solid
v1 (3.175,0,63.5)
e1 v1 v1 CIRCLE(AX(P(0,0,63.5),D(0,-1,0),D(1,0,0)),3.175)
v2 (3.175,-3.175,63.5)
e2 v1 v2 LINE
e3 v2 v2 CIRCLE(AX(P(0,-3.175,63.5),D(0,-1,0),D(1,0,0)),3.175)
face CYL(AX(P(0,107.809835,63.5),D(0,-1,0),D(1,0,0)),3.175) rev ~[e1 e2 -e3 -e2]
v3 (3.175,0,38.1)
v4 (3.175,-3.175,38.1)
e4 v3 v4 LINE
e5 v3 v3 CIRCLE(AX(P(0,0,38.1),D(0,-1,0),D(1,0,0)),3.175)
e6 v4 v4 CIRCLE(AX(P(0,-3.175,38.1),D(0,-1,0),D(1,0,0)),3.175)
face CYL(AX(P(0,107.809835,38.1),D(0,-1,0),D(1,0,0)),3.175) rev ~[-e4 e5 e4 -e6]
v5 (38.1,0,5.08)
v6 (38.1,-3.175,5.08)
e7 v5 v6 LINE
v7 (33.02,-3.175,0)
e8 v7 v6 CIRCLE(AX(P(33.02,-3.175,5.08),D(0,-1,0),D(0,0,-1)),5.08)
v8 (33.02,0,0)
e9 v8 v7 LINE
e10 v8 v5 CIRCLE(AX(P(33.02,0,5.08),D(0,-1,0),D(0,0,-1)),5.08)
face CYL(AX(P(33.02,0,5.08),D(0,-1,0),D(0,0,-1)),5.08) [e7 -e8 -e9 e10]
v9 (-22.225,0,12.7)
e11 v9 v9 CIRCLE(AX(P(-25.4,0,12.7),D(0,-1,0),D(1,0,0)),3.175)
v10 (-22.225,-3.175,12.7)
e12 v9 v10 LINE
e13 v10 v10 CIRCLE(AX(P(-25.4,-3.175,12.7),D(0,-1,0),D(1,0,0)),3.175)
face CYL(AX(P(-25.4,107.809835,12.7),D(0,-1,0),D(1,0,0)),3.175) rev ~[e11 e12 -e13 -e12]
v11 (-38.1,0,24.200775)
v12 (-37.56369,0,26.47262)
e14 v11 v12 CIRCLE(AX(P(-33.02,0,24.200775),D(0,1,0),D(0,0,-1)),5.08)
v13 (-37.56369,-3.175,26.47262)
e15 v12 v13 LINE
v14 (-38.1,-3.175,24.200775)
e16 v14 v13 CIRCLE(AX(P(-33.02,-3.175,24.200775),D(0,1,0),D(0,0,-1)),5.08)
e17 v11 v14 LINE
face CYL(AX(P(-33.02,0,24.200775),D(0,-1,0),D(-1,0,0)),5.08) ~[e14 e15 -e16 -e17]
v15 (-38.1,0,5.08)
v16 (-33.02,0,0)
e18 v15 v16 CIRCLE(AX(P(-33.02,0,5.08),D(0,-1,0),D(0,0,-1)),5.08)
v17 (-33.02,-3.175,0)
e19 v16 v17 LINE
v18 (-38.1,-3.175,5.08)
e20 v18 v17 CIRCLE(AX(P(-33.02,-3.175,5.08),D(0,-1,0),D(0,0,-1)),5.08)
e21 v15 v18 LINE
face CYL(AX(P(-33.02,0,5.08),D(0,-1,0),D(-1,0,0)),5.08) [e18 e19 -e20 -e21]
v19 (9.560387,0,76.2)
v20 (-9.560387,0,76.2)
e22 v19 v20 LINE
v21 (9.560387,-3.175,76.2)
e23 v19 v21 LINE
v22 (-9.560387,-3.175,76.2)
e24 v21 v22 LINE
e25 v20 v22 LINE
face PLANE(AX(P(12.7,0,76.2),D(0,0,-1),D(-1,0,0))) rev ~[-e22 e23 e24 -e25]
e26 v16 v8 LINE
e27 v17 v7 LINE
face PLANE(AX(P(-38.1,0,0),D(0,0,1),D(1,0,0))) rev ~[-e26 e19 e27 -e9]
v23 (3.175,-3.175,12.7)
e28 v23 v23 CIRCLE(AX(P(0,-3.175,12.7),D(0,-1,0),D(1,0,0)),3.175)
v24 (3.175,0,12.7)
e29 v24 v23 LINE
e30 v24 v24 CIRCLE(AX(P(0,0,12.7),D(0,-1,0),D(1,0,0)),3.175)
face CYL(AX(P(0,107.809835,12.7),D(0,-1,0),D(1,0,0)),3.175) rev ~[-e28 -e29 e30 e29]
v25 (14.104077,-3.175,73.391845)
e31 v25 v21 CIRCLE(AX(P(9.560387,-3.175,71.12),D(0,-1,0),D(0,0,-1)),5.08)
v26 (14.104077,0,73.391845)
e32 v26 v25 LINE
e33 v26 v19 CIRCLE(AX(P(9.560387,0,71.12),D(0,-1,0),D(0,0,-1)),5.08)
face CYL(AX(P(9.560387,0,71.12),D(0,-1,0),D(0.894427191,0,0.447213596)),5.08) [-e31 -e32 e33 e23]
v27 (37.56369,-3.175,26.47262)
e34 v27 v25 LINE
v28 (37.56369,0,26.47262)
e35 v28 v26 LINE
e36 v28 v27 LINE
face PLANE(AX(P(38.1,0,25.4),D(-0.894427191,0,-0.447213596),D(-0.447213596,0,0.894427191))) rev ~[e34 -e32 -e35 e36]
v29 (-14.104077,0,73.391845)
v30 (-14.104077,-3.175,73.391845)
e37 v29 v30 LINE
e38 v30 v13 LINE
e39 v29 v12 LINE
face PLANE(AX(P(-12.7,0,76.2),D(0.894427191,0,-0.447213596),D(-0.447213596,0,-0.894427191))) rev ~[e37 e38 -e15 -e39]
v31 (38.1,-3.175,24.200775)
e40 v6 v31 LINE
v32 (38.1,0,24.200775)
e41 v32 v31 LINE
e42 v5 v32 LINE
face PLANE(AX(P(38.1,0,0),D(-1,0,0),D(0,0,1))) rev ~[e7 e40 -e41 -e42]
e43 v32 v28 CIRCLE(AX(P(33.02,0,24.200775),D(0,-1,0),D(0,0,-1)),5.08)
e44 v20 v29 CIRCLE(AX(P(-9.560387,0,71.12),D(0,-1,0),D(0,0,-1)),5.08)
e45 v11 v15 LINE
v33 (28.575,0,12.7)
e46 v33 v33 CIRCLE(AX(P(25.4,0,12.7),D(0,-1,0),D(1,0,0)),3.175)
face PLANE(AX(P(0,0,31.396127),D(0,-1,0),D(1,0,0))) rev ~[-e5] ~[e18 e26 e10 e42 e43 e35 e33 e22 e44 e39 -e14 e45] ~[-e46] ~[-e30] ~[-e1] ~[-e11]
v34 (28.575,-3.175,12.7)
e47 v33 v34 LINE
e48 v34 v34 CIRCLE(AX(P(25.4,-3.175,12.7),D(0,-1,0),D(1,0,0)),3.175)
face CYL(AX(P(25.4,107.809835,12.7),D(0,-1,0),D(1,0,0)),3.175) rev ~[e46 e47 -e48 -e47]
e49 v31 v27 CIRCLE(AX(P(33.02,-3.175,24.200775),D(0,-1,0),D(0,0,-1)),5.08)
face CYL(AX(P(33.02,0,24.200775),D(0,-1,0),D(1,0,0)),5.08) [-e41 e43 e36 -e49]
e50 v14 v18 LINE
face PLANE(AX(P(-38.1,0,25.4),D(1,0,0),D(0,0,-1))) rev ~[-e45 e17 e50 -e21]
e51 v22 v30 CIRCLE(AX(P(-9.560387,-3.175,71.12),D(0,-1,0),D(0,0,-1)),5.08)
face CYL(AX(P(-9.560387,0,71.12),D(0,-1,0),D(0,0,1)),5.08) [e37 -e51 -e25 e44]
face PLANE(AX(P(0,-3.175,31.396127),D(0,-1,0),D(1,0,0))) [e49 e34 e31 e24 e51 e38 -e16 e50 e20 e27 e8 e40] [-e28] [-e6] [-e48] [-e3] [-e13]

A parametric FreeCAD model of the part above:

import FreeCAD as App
import Part
import Sketcher
from FreeCAD import Vector
Q = App.Units.Quantity


def edges_at(feature, points):
    """Names of the edges that pass closest to the given points."""
    edges = feature.Shape.Edges
    near = lambda p: min(range(len(edges)), key=lambda i: edges[i].distToShape(Part.Vertex(*p))[0])
    return sorted({f"Edge{near(p) + 1}" for p in points})

doc = App.newDocument("Part")
body = doc.addObject("PartDesign::Body", "Body")

sketch1 = body.newObject("Sketcher::SketchObject", "Sketch")
sketch1.AttachmentSupport = (doc.getObject("XZ_Plane"), [""])
sketch1.MapMode = "FlatFace"
sketch1.addGeometry([
    Part.LineSegment(Vector(-38, 25, 0), Vector(-38, 0, 0)),
    Part.LineSegment(Vector(-38, 0, 0), Vector(38, 0, 0)),
    Part.LineSegment(Vector(38, 0, 0), Vector(38, 25, 0)),
    Part.LineSegment(Vector(38, 25, 0), Vector(13, 76, 0)),
    Part.LineSegment(Vector(13, 76, 0), Vector(-13, 76, 0)),
    Part.LineSegment(Vector(-13, 76, 0), Vector(-38, 25, 0)),
], False)
sketch1.addConstraint([
    Sketcher.Constraint("Coincident", 0, 2, 1, 1),
    Sketcher.Constraint("Coincident", 1, 2, 2, 1),
    Sketcher.Constraint("Coincident", 2, 2, 3, 1),
    Sketcher.Constraint("Coincident", 3, 2, 4, 1),
    Sketcher.Constraint("Coincident", 4, 2, 5, 1),
    Sketcher.Constraint("Coincident", 5, 2, 0, 1),
    Sketcher.Constraint("Vertical", 0),
    Sketcher.Constraint("Horizontal", 1),
    Sketcher.Constraint("Vertical", 2),
    Sketcher.Constraint("Horizontal", 4),
    Sketcher.Constraint("Symmetric", 0, 2, 1, 2, -1, 1),
    Sketcher.Constraint("Horizontal", 2, 2, 5, 2),
    Sketcher.Constraint("Equal", 4, 0),
    Sketcher.Constraint("Equal", 3, 5),
    Sketcher.Constraint("DistanceX", 1, 1, 1, 2, Q("3 in")),
    Sketcher.Constraint("DistanceX", 4, 2, 4, 1, Q("1 in")),
    Sketcher.Constraint("DistanceY", -1, 1, 3, 2, Q("3 in")),
])
pad1 = body.newObject("PartDesign::Pad", "Pad")
pad1.Profile = sketch1
pad1.Length = Q("0.125 in")
doc.recompute()

fillet = body.newObject("PartDesign::Fillet", "Fillet")
fillet.Base = (pad1, edges_at(pad1, [
    (12.7, -1.587, 76.2),
    (-12.7, -1.587, 76.2),
    (38.1, -1.587, 25.4),
    (38.1, -1.587, 0),
    (-38.1, -1.587, 25.4),
    (-38.1, -1.587, 0),
]))
fillet.Radius = Q("0.2 in")

sketch2 = body.newObject("Sketcher::SketchObject", "Sketch001")
sketch2.AttachmentSupport = (doc.getObject("XZ_Plane"), [""])
sketch2.MapMode = "FlatFace"
sketch2.addGeometry([
    Part.Circle(Vector(25.4, 12.7, 0), Vector(0, 0, 1), 3.2),
    Part.Circle(Vector(0, 12.7, 0), Vector(0, 0, 1), 3.2),
    Part.Circle(Vector(-25.4, 12.7, 0), Vector(0, 0, 1), 3.2),
    Part.Circle(Vector(0, 38.1, 0), Vector(0, 0, 1), 3.2),
    Part.Circle(Vector(0, 63.5, 0), Vector(0, 0, 1), 3.2),
], False)
sketch2.addConstraint([
    Sketcher.Constraint("Equal", 0, 1),
    Sketcher.Constraint("Equal", 1, 2),
    Sketcher.Constraint("Equal", 2, 3),
    Sketcher.Constraint("Equal", 3, 4),
    Sketcher.Constraint("Symmetric", 0, 3, 2, 3, -2),
    Sketcher.Constraint("PointOnObject", 1, 3, -2),
    Sketcher.Constraint("PointOnObject", 3, 3, -2),
    Sketcher.Constraint("PointOnObject", 4, 3, -2),
    Sketcher.Constraint("Horizontal", 0, 3, 1, 3),
    Sketcher.Constraint("Diameter", 0, Q("0.25 in")),
    Sketcher.Constraint("DistanceX", -1, 1, 0, 3, Q("1 in")),
    Sketcher.Constraint("DistanceY", 1, 3, 3, 3, Q("1 in")),
    Sketcher.Constraint("DistanceY", 3, 3, 4, 3, Q("1 in")),
    Sketcher.Constraint("DistanceY", -1, 1, 0, 3, Q("0.5 in")),
])
doc.recompute()
hole = body.newObject("PartDesign::Hole", "Hole")
hole.Profile = sketch2
hole.ThreadType = "None"
hole.Diameter = Q("0.25 in")
hole.DepthType = "ThroughAll"
hole.Reversed = True

doc.recompute()
